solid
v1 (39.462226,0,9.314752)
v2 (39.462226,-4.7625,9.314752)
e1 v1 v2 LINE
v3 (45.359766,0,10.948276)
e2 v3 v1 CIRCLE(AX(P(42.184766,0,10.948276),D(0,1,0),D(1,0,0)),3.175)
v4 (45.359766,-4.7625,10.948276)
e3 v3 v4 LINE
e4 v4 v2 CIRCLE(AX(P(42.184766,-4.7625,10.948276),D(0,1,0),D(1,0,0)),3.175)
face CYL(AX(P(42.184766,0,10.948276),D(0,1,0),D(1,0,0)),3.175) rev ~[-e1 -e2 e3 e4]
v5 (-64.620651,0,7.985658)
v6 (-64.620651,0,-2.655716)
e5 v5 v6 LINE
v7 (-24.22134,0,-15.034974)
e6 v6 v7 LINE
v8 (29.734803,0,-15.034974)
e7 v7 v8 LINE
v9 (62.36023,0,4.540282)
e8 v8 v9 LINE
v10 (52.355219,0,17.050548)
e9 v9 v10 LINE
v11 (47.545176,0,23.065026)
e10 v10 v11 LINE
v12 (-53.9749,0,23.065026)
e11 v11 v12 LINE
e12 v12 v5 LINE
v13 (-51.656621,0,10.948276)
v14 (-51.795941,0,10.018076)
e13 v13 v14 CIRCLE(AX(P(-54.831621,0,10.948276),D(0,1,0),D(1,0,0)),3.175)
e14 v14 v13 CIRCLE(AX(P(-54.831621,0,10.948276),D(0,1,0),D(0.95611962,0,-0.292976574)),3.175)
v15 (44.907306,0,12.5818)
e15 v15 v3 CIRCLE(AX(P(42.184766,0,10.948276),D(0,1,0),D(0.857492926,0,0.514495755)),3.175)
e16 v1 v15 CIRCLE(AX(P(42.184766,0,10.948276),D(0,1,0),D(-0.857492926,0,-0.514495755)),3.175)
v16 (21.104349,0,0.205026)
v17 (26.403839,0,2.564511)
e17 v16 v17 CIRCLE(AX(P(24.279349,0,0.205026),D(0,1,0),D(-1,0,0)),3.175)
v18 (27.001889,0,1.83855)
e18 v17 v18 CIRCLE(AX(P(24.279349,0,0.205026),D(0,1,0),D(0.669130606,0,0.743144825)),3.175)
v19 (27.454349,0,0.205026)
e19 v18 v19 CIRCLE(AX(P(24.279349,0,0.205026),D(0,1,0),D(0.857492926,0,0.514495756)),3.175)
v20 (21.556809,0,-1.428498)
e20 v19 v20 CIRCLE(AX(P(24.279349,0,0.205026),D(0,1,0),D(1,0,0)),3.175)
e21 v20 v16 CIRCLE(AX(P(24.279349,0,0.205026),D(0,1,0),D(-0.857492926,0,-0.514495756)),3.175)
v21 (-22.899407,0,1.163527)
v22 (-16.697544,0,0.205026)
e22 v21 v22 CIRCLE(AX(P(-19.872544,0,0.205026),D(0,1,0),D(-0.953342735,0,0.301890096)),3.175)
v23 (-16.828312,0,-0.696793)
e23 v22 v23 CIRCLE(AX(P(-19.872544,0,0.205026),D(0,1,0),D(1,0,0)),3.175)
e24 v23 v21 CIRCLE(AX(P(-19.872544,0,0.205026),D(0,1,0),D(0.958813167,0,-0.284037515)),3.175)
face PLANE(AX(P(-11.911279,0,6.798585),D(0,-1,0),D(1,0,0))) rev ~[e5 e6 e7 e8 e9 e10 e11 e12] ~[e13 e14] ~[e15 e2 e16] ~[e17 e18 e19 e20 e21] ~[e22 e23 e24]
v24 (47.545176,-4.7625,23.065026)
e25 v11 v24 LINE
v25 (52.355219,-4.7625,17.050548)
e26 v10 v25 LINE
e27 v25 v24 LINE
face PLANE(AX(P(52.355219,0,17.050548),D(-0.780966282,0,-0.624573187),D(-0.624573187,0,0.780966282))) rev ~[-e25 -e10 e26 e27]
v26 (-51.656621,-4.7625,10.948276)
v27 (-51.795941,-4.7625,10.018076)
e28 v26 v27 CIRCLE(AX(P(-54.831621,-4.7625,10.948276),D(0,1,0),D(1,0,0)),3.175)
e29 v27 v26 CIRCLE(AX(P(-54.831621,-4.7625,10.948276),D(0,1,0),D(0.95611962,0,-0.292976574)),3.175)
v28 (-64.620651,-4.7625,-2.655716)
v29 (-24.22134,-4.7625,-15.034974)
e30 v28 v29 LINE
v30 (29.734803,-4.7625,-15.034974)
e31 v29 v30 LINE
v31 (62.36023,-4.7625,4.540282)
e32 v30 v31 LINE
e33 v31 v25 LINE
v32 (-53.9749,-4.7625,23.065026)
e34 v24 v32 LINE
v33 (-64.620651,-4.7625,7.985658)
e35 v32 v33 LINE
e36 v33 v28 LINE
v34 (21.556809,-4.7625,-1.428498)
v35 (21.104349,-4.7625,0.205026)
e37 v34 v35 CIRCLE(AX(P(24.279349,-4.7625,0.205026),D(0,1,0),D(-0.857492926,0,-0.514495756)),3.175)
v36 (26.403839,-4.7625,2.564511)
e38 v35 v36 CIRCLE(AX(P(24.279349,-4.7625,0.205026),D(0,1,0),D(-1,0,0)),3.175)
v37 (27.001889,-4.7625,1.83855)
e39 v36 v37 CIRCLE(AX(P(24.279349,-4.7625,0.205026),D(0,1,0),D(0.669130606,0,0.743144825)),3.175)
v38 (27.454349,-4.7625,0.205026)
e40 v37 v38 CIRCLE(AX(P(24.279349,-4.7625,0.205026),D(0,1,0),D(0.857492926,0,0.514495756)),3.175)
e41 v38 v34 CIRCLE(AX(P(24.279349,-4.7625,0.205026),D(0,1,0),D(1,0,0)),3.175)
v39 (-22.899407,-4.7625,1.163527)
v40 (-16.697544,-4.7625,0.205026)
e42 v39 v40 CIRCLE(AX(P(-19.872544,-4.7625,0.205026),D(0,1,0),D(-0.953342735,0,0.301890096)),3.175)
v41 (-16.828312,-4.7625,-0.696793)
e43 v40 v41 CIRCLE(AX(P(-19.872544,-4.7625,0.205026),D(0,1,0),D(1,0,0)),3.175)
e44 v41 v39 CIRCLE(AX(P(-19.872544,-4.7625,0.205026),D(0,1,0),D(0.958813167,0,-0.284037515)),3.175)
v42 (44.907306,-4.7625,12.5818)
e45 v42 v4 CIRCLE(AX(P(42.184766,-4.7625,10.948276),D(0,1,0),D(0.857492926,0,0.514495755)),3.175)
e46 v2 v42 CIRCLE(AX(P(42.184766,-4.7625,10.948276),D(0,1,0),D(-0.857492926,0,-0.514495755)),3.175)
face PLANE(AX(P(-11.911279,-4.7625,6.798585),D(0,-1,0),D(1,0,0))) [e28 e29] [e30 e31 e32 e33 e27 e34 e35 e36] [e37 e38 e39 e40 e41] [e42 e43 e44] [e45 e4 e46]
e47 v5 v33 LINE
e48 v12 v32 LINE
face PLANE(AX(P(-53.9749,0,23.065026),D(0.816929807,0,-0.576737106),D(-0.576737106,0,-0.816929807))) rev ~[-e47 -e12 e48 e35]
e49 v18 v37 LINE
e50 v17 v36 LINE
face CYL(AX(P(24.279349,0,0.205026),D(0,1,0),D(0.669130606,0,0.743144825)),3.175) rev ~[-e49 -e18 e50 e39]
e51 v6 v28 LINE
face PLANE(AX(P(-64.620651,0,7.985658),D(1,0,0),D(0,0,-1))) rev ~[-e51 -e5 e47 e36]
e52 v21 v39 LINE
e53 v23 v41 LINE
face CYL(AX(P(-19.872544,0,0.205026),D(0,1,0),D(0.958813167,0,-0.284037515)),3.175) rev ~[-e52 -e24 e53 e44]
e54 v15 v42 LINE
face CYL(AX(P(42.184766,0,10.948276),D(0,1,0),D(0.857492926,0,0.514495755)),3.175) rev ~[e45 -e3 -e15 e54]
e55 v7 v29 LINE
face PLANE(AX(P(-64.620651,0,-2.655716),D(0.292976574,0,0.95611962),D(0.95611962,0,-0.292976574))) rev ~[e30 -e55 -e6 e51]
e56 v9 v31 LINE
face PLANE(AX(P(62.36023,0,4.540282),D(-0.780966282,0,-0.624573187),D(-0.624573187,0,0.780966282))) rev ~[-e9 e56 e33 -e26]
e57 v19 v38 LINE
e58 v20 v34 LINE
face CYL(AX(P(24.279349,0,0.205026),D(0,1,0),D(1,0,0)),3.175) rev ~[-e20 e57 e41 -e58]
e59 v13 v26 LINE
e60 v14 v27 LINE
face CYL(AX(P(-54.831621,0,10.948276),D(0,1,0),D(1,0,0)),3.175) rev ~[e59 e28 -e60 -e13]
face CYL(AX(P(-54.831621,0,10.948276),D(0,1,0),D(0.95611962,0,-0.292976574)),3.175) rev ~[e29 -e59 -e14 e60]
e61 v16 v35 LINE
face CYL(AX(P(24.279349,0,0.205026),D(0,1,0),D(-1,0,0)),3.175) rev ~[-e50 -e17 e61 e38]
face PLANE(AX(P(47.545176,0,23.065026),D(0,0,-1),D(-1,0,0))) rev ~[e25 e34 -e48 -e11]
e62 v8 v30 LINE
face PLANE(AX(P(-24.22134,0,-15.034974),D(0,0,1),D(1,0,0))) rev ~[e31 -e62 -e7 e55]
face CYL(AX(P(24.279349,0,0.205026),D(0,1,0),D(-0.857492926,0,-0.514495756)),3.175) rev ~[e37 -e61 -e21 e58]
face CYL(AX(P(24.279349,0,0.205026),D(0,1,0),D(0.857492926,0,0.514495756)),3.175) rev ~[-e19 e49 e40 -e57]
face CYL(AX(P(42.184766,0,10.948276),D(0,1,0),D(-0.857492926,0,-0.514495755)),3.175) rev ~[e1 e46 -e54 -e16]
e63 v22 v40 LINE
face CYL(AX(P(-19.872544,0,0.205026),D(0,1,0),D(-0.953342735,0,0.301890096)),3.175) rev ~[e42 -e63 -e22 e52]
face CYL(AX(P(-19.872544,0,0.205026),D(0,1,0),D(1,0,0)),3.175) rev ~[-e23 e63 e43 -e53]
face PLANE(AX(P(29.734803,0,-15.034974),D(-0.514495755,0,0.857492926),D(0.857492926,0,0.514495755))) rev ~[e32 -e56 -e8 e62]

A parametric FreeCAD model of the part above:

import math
import FreeCAD as App
import Part
import Sketcher
Q = App.Units.Quantity

doc = App.newDocument("Part")
params = doc.addObject("Spreadsheet::Sheet", "Params")
for row, (alias, value) in enumerate([
    ("sketch1_radius", "0.125 in"),
    ("pad1_length", "0.1875 in"),
], start=1):
    params.set(f"A{row}", alias)
    params.set(f"B{row}", "=" + value)
    params.setAlias(f"B{row}", alias)

body = doc.addObject("PartDesign::Body", "Body")

sketch1 = doc.addObject("Sketcher::SketchObject", "Sketch")
body.addObject(sketch1)
sketch1.AttachmentSupport = (doc.XZ_Plane, [""])
sketch1.MapMode = "FlatFace"
sketch1.addGeometry(Part.LineSegment(App.Vector(-54, 23.1, 0), App.Vector(-64.6, 8, 0)), False)
sketch1.addGeometry(Part.LineSegment(App.Vector(-64.6, 8, 0), App.Vector(-64.6, -2.7, 0)), False)
sketch1.addGeometry(Part.LineSegment(App.Vector(-64.6, -2.7, 0), App.Vector(-24.2, -15, 0)), False)
sketch1.addGeometry(Part.LineSegment(App.Vector(-24.2, -15, 0), App.Vector(29.7, -15, 0)), False)
sketch1.addGeometry(Part.LineSegment(App.Vector(29.7, -15, 0), App.Vector(62.4, 4.5, 0)), False)
sketch1.addGeometry(Part.LineSegment(App.Vector(62.4, 4.5, 0), App.Vector(52.4, 17.1, 0)), False)
sketch1.addGeometry(Part.LineSegment(App.Vector(52.4, 17.1, 0), App.Vector(47.5, 23.1, 0)), False)
sketch1.addGeometry(Part.LineSegment(App.Vector(47.5, 23.1, 0), App.Vector(-54, 23.1, 0)), False)
sketch1.addGeometry(Part.ArcOfCircle(Part.Circle(App.Vector(24.3, 0.2, 0), App.Vector(0, 0, 1), 3.2), math.radians(180), math.radians(211)), False)
sketch1.addGeometry(Part.ArcOfCircle(Part.Circle(App.Vector(24.3, 0.2, 0), App.Vector(0, 0, 1), 3.2), math.radians(48), math.radians(180)), False)
sketch1.addGeometry(Part.ArcOfCircle(Part.Circle(App.Vector(24.3, 0.2, 0), App.Vector(0, 0, 1), 3.2), math.radians(30.96), math.radians(48)), False)
sketch1.addGeometry(Part.ArcOfCircle(Part.Circle(App.Vector(24.3, 0.2, 0), App.Vector(0, 0, 1), 3.2), math.radians(0), math.radians(31)), False)
sketch1.addGeometry(Part.ArcOfCircle(Part.Circle(App.Vector(24.3, 0.2, 0), App.Vector(0, 0, 1), 3.2), math.radians(-149), math.radians(0)), False)
sketch1.addGeometry(Part.ArcOfCircle(Part.Circle(App.Vector(42.2, 10.9, 0), App.Vector(0, 0, 1), 3.2), math.radians(31), math.radians(211)), False)
sketch1.addGeometry(Part.ArcOfCircle(Part.Circle(App.Vector(42.2, 10.9, 0), App.Vector(0, 0, 1), 3.2), math.radians(0), math.radians(31)), False)
sketch1.addGeometry(Part.ArcOfCircle(Part.Circle(App.Vector(42.2, 10.9, 0), App.Vector(0, 0, 1), 3.2), math.radians(-149), math.radians(0)), False)
sketch1.addGeometry(Part.ArcOfCircle(Part.Circle(App.Vector(-19.9, 0.2, 0), App.Vector(0, 0, 1), 3.2), math.radians(0), math.radians(162)), False)
sketch1.addGeometry(Part.ArcOfCircle(Part.Circle(App.Vector(-19.9, 0.2, 0), App.Vector(0, 0, 1), 3.2), math.radians(-16.5), math.radians(0)), False)
sketch1.addGeometry(Part.ArcOfCircle(Part.Circle(App.Vector(-19.9, 0.2, 0), App.Vector(0, 0, 1), 3.2), math.radians(162), math.radians(343)), False)
sketch1.addGeometry(Part.ArcOfCircle(Part.Circle(App.Vector(-54.8, 10.9, 0), App.Vector(0, 0, 1), 3.2), math.radians(0), math.radians(343)), False)
sketch1.addGeometry(Part.ArcOfCircle(Part.Circle(App.Vector(-54.8, 10.9, 0), App.Vector(0, 0, 1), 3.2), math.radians(-17.04), math.radians(0)), False)
sketch1.addConstraint(Sketcher.Constraint("Coincident", 0, 2, 1, 1))
sketch1.addConstraint(Sketcher.Constraint("Coincident", 1, 2, 2, 1))
sketch1.addConstraint(Sketcher.Constraint("Coincident", 2, 2, 3, 1))
sketch1.addConstraint(Sketcher.Constraint("Coincident", 3, 2, 4, 1))
sketch1.addConstraint(Sketcher.Constraint("Coincident", 4, 2, 5, 1))
sketch1.addConstraint(Sketcher.Constraint("Coincident", 5, 2, 6, 1))
sketch1.addConstraint(Sketcher.Constraint("Coincident", 6, 2, 7, 1))
sketch1.addConstraint(Sketcher.Constraint("Coincident", 7, 2, 0, 1))
sketch1.addConstraint(Sketcher.Constraint("Tangent", 8, 1, 9, 2))
sketch1.addConstraint(Sketcher.Constraint("Tangent", 9, 1, 10, 2))
sketch1.addConstraint(Sketcher.Constraint("Tangent", 10, 1, 11, 2))
sketch1.addConstraint(Sketcher.Constraint("Tangent", 11, 1, 12, 2))
sketch1.addConstraint(Sketcher.Constraint("Tangent", 12, 1, 8, 2))
sketch1.addConstraint(Sketcher.Constraint("Tangent", 13, 1, 14, 2))
sketch1.addConstraint(Sketcher.Constraint("Tangent", 14, 1, 15, 2))
sketch1.addConstraint(Sketcher.Constraint("Tangent", 15, 1, 13, 2))
sketch1.addConstraint(Sketcher.Constraint("Tangent", 16, 1, 17, 2))
sketch1.addConstraint(Sketcher.Constraint("Tangent", 17, 1, 18, 2))
sketch1.addConstraint(Sketcher.Constraint("Tangent", 18, 1, 16, 2))
sketch1.addConstraint(Sketcher.Constraint("Tangent", 19, 1, 20, 2))
sketch1.addConstraint(Sketcher.Constraint("Coincident", 20, 1, 19, 2))
sketch1.addConstraint(Sketcher.Constraint("Vertical", 1))
sketch1.addConstraint(Sketcher.Constraint("Horizontal", 3))
sketch1.addConstraint(Sketcher.Constraint("Horizontal", 7))
sketch1.addConstraint(Sketcher.Constraint("Coincident", 10, 3, 8, 3))
sketch1.addConstraint(Sketcher.Constraint("Equal", 12, 13))
sketch1.addConstraint(Sketcher.Constraint("Equal", 15, 16))
sketch1.addConstraint(Sketcher.Constraint("Equal", 18, 19))
sketch1.addConstraint(Sketcher.Constraint("Parallel", 5, 6))
sketch1.addConstraint(Sketcher.Constraint("Horizontal", 12, 3, 16, 3))
sketch1.addConstraint(Sketcher.Constraint("Horizontal", 15, 3, 19, 3))
sketch1.addConstraint(Sketcher.Constraint("Horizontal", 18, 3, 8, 1))
sketch1.addConstraint(Sketcher.Constraint("Horizontal", 8, 1, 11, 1))
sketch1.addConstraint(Sketcher.Constraint("Horizontal", 20, 3, 14, 1))
sketch1.addConstraint(Sketcher.Constraint("Horizontal", 11, 1, 16, 1))
sketch1.addConstraint(Sketcher.Constraint("Horizontal", 14, 1, 19, 1))
sketch1.addConstraint(Sketcher.Constraint("Radius", 8, Q("0.125 in")))
sketch1.addConstraint(Sketcher.Constraint("DistanceY", 2, 2, 16, 3, Q("0.6 in")))
sketch1.addConstraint(Sketcher.Constraint("DistanceY", 16, 3, 7, 2, Q("0.9 in")))
sketch1.addConstraint(Sketcher.Constraint("DistanceX", 7, 2, -1, 1, Q("53.9749 mm")))
sketch1.addConstraint(Sketcher.Constraint("DistanceY", 12, 1, -1, 1, Q("1.428498 mm")))
sketch1.addConstraint(Sketcher.Constraint("DistanceY", -1, 1, 13, 1, Q("12.5818 mm")))
sketch1.addConstraint(Sketcher.Constraint("DistanceY", 16, 3, 18, 1, Q("0.958501 mm")))
sketch1.addConstraint(Sketcher.Constraint("DistanceY", 20, 1, 19, 1, Q("0.930201 mm")))
sketch1.addConstraint(Sketcher.Constraint("Distance", 4, Q("38.04746 mm")))
sketch1.addConstraint(Sketcher.Constraint("Distance", 6, Q("7.701328 mm")))
sketch1.addConstraint(Sketcher.Constraint("DistanceX", 3, 1, 3, 2, Q("53.956142 mm")))
sketch1.addConstraint(Sketcher.Constraint("DistanceX", 7, 2, 7, 1, Q("101.520076 mm")))
sketch1.addConstraint(Sketcher.Constraint("DistanceY", 1, 2, 1, 1, Q("10.641374 mm")))
sketch1.addConstraint(Sketcher.Constraint("DistanceX", -1, 1, 8, 3, Q("24.279349 mm")))
sketch1.addConstraint(Sketcher.Constraint("DistanceX", 19, 3, -1, 1, Q("54.831621 mm")))
sketch1.addConstraint(Sketcher.Constraint("DistanceX", 0, 2, -1, 1, Q("64.620651 mm")))
sketch1.addConstraint(Sketcher.Constraint("DistanceY", -1, 1, 0, 2, Q("7.985658 mm")))
sketch1.addConstraint(Sketcher.Constraint("DistanceX", 2, 2, -1, 1, Q("24.22134 mm")))
sketch1.addConstraint(Sketcher.Constraint("DistanceX", -1, 1, 4, 2, Q("62.36023 mm")))
sketch1.addConstraint(Sketcher.Constraint("DistanceX", -1, 1, 9, 1, Q("26.403839 mm")))
sketch1.addConstraint(Sketcher.Constraint("DistanceY", -1, 1, 9, 1, Q("2.564511 mm")))
sketch1.addConstraint(Sketcher.Constraint("DistanceX", -1, 1, 10, 1, Q("27.001889 mm")))
sketch1.addConstraint(Sketcher.Constraint("DistanceX", 17, 1, -1, 1, Q("16.828312 mm")))
sketch1.addConstraint(Sketcher.Constraint("DistanceY", 11, 3, 13, 3, Q("10.74325 mm")))
sketch1.addConstraint(Sketcher.Constraint("DistanceX", 13, 3, 6, 2, Q("5.36041 mm")))
sketch1.addConstraint(Sketcher.Constraint("DistanceX", 15, 1, 13, 3, Q("2.72254 mm")))
sketch1.addConstraint(Sketcher.Constraint("DistanceX", 17, 1, 16, 1, Q("0.130768 mm")))
sketch1.setExpression("Constraints[36]", "Params.sketch1_radius")
pad1 = doc.addObject("PartDesign::Pad", "Pad")
body.addObject(pad1)
pad1.Profile = sketch1
pad1.setExpression("Length", "Params.pad1_length")

doc.recompute()
